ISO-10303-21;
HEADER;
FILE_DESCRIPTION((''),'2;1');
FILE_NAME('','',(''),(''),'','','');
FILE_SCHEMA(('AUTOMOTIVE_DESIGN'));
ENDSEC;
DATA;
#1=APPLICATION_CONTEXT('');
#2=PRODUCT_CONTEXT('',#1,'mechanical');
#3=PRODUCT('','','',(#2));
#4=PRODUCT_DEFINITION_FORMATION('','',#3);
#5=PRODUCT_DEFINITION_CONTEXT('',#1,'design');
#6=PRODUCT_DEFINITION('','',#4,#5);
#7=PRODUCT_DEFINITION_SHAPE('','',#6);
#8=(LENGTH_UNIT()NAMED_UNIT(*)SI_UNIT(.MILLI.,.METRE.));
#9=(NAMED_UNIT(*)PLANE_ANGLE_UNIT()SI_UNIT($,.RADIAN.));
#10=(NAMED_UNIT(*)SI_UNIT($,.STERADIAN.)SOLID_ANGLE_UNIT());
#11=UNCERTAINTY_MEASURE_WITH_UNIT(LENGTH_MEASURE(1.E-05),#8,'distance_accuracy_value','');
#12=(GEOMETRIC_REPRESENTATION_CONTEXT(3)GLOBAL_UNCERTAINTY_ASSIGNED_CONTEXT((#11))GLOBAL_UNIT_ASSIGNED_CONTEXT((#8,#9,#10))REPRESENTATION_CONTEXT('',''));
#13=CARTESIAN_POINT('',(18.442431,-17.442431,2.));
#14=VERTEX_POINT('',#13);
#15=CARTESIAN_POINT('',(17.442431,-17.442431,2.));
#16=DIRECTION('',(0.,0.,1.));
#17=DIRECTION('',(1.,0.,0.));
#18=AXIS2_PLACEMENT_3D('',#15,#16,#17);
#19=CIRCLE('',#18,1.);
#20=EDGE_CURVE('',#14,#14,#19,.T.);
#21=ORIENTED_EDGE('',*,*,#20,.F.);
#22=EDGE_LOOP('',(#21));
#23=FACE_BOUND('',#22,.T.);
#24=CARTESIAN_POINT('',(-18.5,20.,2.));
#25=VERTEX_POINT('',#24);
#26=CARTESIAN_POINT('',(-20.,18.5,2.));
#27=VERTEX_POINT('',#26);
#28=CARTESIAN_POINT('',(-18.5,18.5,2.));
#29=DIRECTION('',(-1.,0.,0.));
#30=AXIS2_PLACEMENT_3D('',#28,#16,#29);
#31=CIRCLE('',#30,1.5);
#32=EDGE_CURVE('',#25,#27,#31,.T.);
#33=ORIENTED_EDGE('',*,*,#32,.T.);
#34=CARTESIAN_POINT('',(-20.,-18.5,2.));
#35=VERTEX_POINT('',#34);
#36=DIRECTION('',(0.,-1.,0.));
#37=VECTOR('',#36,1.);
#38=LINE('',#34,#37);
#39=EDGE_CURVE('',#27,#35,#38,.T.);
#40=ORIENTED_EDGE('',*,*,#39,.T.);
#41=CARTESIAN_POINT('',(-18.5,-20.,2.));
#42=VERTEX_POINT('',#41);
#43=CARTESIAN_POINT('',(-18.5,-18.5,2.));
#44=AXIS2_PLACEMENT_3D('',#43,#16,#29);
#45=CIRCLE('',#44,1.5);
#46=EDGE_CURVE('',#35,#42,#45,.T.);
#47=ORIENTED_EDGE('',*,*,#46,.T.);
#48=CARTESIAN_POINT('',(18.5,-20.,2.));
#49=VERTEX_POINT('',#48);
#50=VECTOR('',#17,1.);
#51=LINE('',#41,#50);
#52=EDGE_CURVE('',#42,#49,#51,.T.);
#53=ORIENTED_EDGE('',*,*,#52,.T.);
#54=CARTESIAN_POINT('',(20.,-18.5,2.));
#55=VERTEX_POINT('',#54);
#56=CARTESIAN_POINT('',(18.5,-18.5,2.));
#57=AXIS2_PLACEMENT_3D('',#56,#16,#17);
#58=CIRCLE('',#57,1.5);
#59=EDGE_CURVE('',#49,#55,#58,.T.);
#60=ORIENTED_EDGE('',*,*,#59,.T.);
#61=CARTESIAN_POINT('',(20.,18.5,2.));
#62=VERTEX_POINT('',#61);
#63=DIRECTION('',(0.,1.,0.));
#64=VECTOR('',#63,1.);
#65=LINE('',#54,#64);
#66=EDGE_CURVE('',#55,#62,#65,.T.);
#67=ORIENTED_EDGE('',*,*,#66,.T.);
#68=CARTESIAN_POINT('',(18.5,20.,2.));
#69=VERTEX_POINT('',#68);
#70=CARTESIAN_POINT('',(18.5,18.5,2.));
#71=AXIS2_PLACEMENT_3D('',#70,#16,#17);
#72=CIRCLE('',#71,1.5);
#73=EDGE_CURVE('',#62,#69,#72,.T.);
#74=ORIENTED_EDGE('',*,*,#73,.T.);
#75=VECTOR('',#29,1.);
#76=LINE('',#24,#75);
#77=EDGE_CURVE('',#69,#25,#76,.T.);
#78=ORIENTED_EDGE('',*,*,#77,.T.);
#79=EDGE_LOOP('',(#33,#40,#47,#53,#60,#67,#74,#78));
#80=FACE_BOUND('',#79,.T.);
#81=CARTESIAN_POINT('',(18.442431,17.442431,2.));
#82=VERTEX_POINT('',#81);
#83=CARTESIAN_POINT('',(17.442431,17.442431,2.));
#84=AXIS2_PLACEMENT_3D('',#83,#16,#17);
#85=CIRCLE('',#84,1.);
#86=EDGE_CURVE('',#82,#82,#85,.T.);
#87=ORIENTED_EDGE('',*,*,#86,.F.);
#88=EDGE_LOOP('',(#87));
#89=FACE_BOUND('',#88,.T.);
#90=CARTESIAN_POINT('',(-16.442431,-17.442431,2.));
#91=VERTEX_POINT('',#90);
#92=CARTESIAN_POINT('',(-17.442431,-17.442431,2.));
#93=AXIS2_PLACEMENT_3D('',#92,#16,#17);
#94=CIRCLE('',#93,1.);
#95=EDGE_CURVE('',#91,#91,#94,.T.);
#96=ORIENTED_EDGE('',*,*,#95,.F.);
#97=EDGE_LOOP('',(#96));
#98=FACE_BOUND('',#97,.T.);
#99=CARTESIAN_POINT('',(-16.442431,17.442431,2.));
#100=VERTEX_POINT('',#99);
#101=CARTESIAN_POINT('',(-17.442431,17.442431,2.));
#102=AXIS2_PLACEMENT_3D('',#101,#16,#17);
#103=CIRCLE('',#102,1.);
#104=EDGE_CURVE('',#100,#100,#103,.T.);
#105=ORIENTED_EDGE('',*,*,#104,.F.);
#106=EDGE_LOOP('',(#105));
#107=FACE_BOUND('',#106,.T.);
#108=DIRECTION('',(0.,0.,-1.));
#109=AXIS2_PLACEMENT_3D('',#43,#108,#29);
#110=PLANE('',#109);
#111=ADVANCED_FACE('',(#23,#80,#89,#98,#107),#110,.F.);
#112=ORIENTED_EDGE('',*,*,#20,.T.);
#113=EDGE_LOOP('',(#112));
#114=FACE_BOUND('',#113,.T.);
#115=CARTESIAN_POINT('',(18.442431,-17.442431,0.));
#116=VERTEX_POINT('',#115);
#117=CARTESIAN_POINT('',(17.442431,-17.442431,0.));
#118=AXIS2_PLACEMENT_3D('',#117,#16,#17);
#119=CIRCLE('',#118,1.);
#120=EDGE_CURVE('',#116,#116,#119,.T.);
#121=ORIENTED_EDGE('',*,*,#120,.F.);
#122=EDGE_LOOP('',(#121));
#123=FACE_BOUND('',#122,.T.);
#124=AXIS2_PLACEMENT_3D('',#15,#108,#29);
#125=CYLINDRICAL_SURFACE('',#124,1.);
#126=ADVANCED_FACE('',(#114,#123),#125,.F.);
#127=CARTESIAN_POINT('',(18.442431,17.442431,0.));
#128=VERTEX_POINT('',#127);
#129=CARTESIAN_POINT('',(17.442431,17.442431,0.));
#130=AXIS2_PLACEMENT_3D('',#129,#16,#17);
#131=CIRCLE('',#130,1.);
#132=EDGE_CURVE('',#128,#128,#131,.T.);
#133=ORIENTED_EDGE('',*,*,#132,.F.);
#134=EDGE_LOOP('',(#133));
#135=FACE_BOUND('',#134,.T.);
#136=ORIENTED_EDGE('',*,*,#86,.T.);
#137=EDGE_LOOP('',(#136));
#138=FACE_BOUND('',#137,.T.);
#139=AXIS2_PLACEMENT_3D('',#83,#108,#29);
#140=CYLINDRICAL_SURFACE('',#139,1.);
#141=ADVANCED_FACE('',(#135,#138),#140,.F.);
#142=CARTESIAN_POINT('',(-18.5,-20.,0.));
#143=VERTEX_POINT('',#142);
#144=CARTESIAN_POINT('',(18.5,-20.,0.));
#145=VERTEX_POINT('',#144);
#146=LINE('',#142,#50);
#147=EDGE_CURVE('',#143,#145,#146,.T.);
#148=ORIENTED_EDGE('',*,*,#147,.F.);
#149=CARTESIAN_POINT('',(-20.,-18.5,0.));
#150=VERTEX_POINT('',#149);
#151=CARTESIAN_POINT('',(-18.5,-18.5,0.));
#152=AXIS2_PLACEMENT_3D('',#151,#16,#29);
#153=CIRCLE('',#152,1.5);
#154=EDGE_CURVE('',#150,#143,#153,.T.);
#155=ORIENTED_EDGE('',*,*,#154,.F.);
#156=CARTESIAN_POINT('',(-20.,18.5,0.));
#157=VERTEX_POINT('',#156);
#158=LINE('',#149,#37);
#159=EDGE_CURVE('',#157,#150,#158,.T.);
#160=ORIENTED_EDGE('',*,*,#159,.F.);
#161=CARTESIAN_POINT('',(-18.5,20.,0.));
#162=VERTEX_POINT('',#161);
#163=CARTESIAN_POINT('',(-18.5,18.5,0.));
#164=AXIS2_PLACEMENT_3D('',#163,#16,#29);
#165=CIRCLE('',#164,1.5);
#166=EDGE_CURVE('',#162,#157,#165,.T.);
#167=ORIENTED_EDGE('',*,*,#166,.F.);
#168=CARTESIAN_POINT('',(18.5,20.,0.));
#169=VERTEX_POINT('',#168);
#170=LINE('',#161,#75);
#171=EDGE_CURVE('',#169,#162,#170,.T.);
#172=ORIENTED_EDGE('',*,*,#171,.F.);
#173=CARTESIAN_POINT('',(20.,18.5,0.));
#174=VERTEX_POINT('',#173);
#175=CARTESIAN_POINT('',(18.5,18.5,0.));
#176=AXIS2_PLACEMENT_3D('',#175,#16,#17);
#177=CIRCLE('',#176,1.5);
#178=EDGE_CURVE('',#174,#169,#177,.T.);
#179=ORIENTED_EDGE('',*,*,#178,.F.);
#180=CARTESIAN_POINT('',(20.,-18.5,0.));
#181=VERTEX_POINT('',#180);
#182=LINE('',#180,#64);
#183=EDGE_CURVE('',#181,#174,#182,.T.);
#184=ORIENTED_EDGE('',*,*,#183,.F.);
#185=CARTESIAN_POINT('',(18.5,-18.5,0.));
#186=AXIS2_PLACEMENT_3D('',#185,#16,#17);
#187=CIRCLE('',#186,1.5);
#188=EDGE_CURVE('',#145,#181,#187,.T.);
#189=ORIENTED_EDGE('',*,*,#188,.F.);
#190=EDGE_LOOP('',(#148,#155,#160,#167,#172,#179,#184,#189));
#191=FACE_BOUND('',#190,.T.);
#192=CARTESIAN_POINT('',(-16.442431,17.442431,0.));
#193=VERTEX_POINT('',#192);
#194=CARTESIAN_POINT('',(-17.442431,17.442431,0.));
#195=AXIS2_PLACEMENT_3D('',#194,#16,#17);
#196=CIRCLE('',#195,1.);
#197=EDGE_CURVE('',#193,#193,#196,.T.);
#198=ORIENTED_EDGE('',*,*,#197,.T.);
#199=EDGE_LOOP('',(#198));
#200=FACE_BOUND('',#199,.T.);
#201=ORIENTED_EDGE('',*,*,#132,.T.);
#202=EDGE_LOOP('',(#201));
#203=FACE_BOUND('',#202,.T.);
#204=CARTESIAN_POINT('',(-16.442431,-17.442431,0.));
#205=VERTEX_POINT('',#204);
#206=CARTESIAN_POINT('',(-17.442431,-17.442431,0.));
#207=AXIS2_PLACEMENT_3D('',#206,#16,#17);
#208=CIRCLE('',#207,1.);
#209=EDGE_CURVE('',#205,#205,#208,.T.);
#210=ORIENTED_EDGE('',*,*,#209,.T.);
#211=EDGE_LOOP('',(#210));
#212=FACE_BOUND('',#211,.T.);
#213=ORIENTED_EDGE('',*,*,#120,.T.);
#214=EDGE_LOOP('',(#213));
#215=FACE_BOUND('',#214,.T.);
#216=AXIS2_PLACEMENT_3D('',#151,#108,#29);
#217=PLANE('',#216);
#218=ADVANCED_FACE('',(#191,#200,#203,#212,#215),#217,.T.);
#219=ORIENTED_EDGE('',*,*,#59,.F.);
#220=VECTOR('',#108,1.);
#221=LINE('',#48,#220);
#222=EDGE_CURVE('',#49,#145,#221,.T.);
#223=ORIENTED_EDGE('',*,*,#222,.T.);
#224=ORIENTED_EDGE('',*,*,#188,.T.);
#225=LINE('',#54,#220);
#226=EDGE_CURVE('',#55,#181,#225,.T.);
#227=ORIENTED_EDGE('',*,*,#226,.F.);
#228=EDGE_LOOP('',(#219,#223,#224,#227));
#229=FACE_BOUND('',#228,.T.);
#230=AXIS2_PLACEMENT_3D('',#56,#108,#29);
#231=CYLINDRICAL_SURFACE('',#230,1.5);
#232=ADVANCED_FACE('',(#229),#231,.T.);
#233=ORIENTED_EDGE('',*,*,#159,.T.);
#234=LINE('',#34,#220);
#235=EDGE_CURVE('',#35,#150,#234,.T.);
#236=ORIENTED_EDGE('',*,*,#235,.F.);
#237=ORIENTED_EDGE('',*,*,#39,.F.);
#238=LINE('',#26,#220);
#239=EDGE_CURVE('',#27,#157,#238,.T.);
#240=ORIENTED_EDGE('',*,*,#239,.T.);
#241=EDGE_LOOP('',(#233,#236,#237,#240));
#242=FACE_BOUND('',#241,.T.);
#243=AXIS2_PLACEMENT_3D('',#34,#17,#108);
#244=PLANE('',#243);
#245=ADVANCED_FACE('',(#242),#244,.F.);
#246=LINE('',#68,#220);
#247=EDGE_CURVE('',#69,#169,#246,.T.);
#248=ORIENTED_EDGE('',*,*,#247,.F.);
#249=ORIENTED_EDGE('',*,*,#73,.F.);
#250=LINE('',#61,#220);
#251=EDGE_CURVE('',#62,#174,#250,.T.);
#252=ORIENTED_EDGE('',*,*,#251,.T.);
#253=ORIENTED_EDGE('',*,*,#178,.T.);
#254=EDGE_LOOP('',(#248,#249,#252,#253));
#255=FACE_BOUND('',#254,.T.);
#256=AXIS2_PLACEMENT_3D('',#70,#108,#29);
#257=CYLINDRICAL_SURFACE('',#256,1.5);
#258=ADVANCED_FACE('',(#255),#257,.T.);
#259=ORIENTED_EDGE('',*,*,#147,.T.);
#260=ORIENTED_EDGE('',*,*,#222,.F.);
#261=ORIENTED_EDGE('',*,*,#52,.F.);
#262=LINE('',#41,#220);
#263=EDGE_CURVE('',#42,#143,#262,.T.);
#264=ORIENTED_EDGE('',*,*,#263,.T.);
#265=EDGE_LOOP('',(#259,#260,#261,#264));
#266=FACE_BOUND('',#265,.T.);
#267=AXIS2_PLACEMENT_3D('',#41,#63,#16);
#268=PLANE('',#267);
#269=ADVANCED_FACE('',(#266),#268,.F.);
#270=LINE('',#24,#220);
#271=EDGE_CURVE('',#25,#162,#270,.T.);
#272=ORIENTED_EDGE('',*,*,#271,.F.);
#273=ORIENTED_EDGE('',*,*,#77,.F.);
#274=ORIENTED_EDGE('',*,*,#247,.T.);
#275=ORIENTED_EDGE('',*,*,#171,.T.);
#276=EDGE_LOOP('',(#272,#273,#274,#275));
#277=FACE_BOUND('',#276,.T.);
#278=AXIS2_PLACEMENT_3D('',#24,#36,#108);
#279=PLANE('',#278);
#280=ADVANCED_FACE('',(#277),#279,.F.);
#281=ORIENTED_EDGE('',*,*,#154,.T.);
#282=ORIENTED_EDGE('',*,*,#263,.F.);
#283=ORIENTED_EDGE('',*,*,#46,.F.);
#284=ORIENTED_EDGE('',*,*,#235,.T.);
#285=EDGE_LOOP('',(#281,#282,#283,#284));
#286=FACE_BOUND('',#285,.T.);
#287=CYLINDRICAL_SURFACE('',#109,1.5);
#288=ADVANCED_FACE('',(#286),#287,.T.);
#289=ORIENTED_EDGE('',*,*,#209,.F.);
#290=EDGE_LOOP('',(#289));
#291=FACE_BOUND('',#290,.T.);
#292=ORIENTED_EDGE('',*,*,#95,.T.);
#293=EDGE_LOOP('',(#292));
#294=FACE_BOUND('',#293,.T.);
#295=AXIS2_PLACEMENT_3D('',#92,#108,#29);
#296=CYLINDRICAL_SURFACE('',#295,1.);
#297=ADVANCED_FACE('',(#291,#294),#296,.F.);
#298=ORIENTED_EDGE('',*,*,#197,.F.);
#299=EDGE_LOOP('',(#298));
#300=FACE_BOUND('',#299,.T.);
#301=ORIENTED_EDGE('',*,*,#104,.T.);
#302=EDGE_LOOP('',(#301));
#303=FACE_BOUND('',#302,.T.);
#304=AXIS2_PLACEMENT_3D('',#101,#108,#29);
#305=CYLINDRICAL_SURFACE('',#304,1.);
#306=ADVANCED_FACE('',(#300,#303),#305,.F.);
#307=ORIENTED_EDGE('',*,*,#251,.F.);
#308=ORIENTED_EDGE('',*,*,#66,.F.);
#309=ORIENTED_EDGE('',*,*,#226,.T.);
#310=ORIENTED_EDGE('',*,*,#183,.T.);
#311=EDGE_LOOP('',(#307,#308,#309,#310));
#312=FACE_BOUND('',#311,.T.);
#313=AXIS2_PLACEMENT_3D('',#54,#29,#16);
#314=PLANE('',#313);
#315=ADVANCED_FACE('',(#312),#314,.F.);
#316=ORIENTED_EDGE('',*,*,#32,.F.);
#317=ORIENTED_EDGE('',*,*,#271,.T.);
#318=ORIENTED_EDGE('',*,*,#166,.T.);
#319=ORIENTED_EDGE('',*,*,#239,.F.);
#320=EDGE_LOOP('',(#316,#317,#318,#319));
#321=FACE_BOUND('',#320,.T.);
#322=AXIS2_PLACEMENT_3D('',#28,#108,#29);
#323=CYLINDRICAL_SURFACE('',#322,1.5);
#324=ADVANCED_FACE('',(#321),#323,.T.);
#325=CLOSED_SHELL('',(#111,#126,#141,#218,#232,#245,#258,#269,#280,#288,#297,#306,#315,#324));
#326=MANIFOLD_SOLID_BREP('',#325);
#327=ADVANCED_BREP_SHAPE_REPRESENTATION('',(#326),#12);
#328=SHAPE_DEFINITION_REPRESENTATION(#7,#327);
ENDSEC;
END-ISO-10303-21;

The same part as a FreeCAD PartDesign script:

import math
import FreeCAD as App
import Part
import Sketcher

doc = App.newDocument("Part")
body = doc.addObject("PartDesign::Body", "Body")

# Sketch on XY plane
sketch1 = body.newObject("Sketcher::SketchObject", "Sketch")
sketch1.AttachmentSupport = (doc.getObject("XY_Plane"), [""])
sketch1.MapMode = "FlatFace"
sketch1.addGeometry([
    Part.LineSegment(App.Vector(-18.5, -20, 0), App.Vector(18.5, -20, 0)),  # 0
    Part.ArcOfCircle(Part.Circle(App.Vector(18.5, -18.5, 0), App.Vector(0, 0, 1), 1.5), math.radians(-90), math.radians(0)),  # 1
    Part.LineSegment(App.Vector(20, -18.5, 0), App.Vector(20, 18.5, 0)),  # 2
    Part.ArcOfCircle(Part.Circle(App.Vector(18.5, 18.5, 0), App.Vector(0, 0, 1), 1.5), math.radians(0), math.radians(90)),  # 3
    Part.LineSegment(App.Vector(18.5, 20, 0), App.Vector(-18.5, 20, 0)),  # 4
    Part.ArcOfCircle(Part.Circle(App.Vector(-18.5, 18.5, 0), App.Vector(0, 0, 1), 1.5), math.radians(90), math.radians(180)),  # 5
    Part.LineSegment(App.Vector(-20, 18.5, 0), App.Vector(-20, -18.5, 0)),  # 6
    Part.ArcOfCircle(Part.Circle(App.Vector(-18.5, -18.5, 0), App.Vector(0, 0, 1), 1.5), math.radians(180), math.radians(270)),  # 7
    Part.Circle(App.Vector(-17.4, -17.4, 0), App.Vector(0, 0, 1), 1),  # 8
    Part.Circle(App.Vector(17.4, -17.4, 0), App.Vector(0, 0, 1), 1),  # 9
    Part.Circle(App.Vector(-17.4, 17.4, 0), App.Vector(0, 0, 1), 1),  # 10
    Part.Circle(App.Vector(17.4, 17.4, 0), App.Vector(0, 0, 1), 1),  # 11
], False)
sketch1.addConstraint([
    Sketcher.Constraint("Tangent", 0, 2, 1, 1),
    Sketcher.Constraint("Tangent", 1, 2, 2, 1),
    Sketcher.Constraint("Tangent", 2, 2, 3, 1),
    Sketcher.Constraint("Tangent", 3, 2, 4, 1),
    Sketcher.Constraint("Tangent", 4, 2, 5, 1),
    Sketcher.Constraint("Tangent", 5, 2, 6, 1),
    Sketcher.Constraint("Tangent", 6, 2, 7, 1),
    Sketcher.Constraint("Tangent", 7, 2, 0, 1),
    Sketcher.Constraint("Horizontal", 0),
    Sketcher.Constraint("Vertical", 2),
    Sketcher.Constraint("Horizontal", 4),
    Sketcher.Constraint("Vertical", 6),
    Sketcher.Constraint("Equal", 1, 3),
    Sketcher.Constraint("Equal", 3, 5),
    Sketcher.Constraint("Equal", 5, 7),
    Sketcher.Constraint("Equal", 8, 9),
    Sketcher.Constraint("Equal", 9, 10),
    Sketcher.Constraint("Equal", 10, 11),
    Sketcher.Constraint("Symmetric", 1, 3, 5, 3, -1, 1),
    Sketcher.Constraint("Symmetric", 9, 3, 10, 3, -1, 1),
    Sketcher.Constraint("Symmetric", 8, 3, 11, 3, -1, 1),
    Sketcher.Constraint("Symmetric", 8, 3, 9, 3, -2),
    Sketcher.Constraint("Equal", 4, 2),
    Sketcher.Constraint("Diameter", 8, 2.0),
    Sketcher.Constraint("Radius", 1, 1.5),
    Sketcher.Constraint("DistanceX", 0, 1, 0, 2, 37.0),
    Sketcher.Constraint("DistanceX", 8, 3, -1, 1, 17.442431),
    Sketcher.Constraint("DistanceY", 8, 3, -1, 1, 17.442431),
])
pad1 = body.newObject("PartDesign::Pad", "Pad")
pad1.Profile = sketch1
pad1.Length = 2

doc.recompute()
